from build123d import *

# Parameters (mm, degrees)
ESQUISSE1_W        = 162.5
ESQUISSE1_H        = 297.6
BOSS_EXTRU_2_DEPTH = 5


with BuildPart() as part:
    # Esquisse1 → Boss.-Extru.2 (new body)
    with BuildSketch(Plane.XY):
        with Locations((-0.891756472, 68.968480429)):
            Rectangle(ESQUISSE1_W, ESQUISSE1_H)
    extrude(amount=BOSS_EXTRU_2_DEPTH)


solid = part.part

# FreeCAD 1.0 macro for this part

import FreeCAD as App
import Part
import Sketcher
from FreeCAD import Vector


def add_polygon(sketch, points):
    """Adds a closed chain of lines whose ends are joined by coincident constraints."""
    first, n = sketch.GeometryCount, len(points)
    for a, b in zip(points, points[1:] + points[:1]):
        sketch.addGeometry(Part.LineSegment(App.Vector(*a, 0), App.Vector(*b, 0)), False)
    for i in range(n):
        sketch.addConstraint(Sketcher.Constraint("Coincident", first + i, 2, first + (i + 1) % n, 1))

doc = App.newDocument("Part")
body = doc.addObject("PartDesign::Body", "Body")

sketch1 = body.newObject("Sketcher::SketchObject", "Sketch")
sketch1.AttachmentSupport = (doc.getObject("XY_Plane"), [""])
sketch1.MapMode = "FlatFace"
add_polygon(sketch1, [(-82.141756, 217.76848), (-82.141756, -79.83152), (80.358244, -79.83152), (80.358244, 217.76848)])
sketch1.addConstraint([
    Sketcher.Constraint("Vertical", 0),
    Sketcher.Constraint("Horizontal", 1),
    Sketcher.Constraint("Vertical", 2),
    Sketcher.Constraint("Horizontal", 3),
    Sketcher.Constraint("DistanceX", 1, 1, 1, 2, 162.5),
    Sketcher.Constraint("DistanceY", 0, 2, 0, 1, 297.6),
    Sketcher.Constraint("DistanceY", 0, 2, -1, 1, 79.83152),
    Sketcher.Constraint("DistanceX", 0, 2, -1, 1, 82.141756),
])
pad1 = body.newObject("PartDesign::Pad", "Pad")
pad1.Profile = sketch1
pad1.Length = 5

doc.recompute()
